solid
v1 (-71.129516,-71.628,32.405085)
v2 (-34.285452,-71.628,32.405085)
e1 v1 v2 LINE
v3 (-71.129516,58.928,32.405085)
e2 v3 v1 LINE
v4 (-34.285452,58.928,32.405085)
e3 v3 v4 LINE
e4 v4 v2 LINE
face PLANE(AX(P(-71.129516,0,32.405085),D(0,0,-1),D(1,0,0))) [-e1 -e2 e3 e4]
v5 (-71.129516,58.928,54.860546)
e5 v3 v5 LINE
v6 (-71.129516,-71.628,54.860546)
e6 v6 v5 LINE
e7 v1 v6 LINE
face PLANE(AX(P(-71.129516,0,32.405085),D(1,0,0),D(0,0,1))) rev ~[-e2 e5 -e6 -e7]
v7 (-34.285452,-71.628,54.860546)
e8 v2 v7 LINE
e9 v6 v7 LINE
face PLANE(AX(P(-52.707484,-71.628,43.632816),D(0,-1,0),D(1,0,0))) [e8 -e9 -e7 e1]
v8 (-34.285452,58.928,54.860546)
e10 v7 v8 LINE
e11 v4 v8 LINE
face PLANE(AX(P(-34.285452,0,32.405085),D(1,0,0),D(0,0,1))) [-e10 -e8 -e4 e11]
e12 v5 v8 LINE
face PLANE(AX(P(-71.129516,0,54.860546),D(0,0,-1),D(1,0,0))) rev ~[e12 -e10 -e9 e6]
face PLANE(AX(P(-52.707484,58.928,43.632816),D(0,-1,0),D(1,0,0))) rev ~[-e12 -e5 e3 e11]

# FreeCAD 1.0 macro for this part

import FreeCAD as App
import Part
import Sketcher
from FreeCAD import Vector
Q = App.Units.Quantity

doc = App.newDocument("Part")
body = doc.addObject("PartDesign::Body", "Body")

sketch1 = body.newObject("Sketcher::SketchObject", "Sketch")
sketch1.AttachmentSupport = (doc.getObject("XZ_Plane"), [""])
sketch1.MapMode = "FlatFace"
sketch1.addGeometry([
    Part.LineSegment(Vector(-71, 55, 0), Vector(-71, 32, 0)),
    Part.LineSegment(Vector(-71, 32, 0), Vector(-34, 32, 0)),
    Part.LineSegment(Vector(-34, 32, 0), Vector(-34, 55, 0)),
    Part.LineSegment(Vector(-34, 55, 0), Vector(-71, 55, 0)),
], False)
sketch1.addConstraint([
    Sketcher.Constraint("Coincident", 0, 2, 1, 1),
    Sketcher.Constraint("Coincident", 1, 2, 2, 1),
    Sketcher.Constraint("Coincident", 2, 2, 3, 1),
    Sketcher.Constraint("Coincident", 3, 2, 0, 1),
    Sketcher.Constraint("Vertical", 0),
    Sketcher.Constraint("Horizontal", 1),
    Sketcher.Constraint("Vertical", 2),
    Sketcher.Constraint("Horizontal", 3),
    Sketcher.Constraint("DistanceY", 0, 2, 0, 1, 22.455461),
    Sketcher.Constraint("DistanceX", 1, 1, 1, 2, 36.844064),
    Sketcher.Constraint("DistanceX", 0, 2, -1, 1, 71.129516),
    Sketcher.Constraint("DistanceY", -1, 1, 0, 2, 32.405085),
])
pad1 = body.newObject("PartDesign::Pad", "Pad")
pad1.Profile = sketch1
pad1.Length = Q("4.64 in")
pad1.Midplane = True

sketch2 = body.newObject("Sketcher::SketchObject", "Sketch001")
sketch2.AttachmentSupport = (doc.getObject("XZ_Plane"), [""])
sketch2.MapMode = "FlatFace"
sketch2.AttachmentOffset = App.Placement(Vector(0, 0, 2.32 * 25.4), App.Rotation())
sketch2.addGeometry([
    Part.LineSegment(Vector(-71, 55, 0), Vector(-71, 32, 0)),
    Part.LineSegment(Vector(-71, 32, 0), Vector(-34, 32, 0)),
    Part.LineSegment(Vector(-34, 32, 0), Vector(-34, 55, 0)),
    Part.LineSegment(Vector(-34, 55, 0), Vector(-71, 55, 0)),
], False)
sketch2.addConstraint([
    Sketcher.Constraint("Coincident", 0, 2, 1, 1),
    Sketcher.Constraint("Coincident", 1, 2, 2, 1),
    Sketcher.Constraint("Coincident", 2, 2, 3, 1),
    Sketcher.Constraint("Coincident", 3, 2, 0, 1),
    Sketcher.Constraint("Vertical", 0),
    Sketcher.Constraint("Horizontal", 1),
    Sketcher.Constraint("Vertical", 2),
    Sketcher.Constraint("Horizontal", 3),
    Sketcher.Constraint("DistanceY", 0, 2, 0, 1, 22.455461),
    Sketcher.Constraint("DistanceX", 1, 1, 1, 2, 36.844064),
    Sketcher.Constraint("DistanceX", 0, 2, -1, 1, 71.129516),
    Sketcher.Constraint("DistanceY", -1, 1, 0, 2, 32.405085),
])
pad2 = body.newObject("PartDesign::Pad", "Pad001")
pad2.Profile = sketch2
pad2.Length = Q("1 in")
pad2.Midplane = True

doc.recompute()
